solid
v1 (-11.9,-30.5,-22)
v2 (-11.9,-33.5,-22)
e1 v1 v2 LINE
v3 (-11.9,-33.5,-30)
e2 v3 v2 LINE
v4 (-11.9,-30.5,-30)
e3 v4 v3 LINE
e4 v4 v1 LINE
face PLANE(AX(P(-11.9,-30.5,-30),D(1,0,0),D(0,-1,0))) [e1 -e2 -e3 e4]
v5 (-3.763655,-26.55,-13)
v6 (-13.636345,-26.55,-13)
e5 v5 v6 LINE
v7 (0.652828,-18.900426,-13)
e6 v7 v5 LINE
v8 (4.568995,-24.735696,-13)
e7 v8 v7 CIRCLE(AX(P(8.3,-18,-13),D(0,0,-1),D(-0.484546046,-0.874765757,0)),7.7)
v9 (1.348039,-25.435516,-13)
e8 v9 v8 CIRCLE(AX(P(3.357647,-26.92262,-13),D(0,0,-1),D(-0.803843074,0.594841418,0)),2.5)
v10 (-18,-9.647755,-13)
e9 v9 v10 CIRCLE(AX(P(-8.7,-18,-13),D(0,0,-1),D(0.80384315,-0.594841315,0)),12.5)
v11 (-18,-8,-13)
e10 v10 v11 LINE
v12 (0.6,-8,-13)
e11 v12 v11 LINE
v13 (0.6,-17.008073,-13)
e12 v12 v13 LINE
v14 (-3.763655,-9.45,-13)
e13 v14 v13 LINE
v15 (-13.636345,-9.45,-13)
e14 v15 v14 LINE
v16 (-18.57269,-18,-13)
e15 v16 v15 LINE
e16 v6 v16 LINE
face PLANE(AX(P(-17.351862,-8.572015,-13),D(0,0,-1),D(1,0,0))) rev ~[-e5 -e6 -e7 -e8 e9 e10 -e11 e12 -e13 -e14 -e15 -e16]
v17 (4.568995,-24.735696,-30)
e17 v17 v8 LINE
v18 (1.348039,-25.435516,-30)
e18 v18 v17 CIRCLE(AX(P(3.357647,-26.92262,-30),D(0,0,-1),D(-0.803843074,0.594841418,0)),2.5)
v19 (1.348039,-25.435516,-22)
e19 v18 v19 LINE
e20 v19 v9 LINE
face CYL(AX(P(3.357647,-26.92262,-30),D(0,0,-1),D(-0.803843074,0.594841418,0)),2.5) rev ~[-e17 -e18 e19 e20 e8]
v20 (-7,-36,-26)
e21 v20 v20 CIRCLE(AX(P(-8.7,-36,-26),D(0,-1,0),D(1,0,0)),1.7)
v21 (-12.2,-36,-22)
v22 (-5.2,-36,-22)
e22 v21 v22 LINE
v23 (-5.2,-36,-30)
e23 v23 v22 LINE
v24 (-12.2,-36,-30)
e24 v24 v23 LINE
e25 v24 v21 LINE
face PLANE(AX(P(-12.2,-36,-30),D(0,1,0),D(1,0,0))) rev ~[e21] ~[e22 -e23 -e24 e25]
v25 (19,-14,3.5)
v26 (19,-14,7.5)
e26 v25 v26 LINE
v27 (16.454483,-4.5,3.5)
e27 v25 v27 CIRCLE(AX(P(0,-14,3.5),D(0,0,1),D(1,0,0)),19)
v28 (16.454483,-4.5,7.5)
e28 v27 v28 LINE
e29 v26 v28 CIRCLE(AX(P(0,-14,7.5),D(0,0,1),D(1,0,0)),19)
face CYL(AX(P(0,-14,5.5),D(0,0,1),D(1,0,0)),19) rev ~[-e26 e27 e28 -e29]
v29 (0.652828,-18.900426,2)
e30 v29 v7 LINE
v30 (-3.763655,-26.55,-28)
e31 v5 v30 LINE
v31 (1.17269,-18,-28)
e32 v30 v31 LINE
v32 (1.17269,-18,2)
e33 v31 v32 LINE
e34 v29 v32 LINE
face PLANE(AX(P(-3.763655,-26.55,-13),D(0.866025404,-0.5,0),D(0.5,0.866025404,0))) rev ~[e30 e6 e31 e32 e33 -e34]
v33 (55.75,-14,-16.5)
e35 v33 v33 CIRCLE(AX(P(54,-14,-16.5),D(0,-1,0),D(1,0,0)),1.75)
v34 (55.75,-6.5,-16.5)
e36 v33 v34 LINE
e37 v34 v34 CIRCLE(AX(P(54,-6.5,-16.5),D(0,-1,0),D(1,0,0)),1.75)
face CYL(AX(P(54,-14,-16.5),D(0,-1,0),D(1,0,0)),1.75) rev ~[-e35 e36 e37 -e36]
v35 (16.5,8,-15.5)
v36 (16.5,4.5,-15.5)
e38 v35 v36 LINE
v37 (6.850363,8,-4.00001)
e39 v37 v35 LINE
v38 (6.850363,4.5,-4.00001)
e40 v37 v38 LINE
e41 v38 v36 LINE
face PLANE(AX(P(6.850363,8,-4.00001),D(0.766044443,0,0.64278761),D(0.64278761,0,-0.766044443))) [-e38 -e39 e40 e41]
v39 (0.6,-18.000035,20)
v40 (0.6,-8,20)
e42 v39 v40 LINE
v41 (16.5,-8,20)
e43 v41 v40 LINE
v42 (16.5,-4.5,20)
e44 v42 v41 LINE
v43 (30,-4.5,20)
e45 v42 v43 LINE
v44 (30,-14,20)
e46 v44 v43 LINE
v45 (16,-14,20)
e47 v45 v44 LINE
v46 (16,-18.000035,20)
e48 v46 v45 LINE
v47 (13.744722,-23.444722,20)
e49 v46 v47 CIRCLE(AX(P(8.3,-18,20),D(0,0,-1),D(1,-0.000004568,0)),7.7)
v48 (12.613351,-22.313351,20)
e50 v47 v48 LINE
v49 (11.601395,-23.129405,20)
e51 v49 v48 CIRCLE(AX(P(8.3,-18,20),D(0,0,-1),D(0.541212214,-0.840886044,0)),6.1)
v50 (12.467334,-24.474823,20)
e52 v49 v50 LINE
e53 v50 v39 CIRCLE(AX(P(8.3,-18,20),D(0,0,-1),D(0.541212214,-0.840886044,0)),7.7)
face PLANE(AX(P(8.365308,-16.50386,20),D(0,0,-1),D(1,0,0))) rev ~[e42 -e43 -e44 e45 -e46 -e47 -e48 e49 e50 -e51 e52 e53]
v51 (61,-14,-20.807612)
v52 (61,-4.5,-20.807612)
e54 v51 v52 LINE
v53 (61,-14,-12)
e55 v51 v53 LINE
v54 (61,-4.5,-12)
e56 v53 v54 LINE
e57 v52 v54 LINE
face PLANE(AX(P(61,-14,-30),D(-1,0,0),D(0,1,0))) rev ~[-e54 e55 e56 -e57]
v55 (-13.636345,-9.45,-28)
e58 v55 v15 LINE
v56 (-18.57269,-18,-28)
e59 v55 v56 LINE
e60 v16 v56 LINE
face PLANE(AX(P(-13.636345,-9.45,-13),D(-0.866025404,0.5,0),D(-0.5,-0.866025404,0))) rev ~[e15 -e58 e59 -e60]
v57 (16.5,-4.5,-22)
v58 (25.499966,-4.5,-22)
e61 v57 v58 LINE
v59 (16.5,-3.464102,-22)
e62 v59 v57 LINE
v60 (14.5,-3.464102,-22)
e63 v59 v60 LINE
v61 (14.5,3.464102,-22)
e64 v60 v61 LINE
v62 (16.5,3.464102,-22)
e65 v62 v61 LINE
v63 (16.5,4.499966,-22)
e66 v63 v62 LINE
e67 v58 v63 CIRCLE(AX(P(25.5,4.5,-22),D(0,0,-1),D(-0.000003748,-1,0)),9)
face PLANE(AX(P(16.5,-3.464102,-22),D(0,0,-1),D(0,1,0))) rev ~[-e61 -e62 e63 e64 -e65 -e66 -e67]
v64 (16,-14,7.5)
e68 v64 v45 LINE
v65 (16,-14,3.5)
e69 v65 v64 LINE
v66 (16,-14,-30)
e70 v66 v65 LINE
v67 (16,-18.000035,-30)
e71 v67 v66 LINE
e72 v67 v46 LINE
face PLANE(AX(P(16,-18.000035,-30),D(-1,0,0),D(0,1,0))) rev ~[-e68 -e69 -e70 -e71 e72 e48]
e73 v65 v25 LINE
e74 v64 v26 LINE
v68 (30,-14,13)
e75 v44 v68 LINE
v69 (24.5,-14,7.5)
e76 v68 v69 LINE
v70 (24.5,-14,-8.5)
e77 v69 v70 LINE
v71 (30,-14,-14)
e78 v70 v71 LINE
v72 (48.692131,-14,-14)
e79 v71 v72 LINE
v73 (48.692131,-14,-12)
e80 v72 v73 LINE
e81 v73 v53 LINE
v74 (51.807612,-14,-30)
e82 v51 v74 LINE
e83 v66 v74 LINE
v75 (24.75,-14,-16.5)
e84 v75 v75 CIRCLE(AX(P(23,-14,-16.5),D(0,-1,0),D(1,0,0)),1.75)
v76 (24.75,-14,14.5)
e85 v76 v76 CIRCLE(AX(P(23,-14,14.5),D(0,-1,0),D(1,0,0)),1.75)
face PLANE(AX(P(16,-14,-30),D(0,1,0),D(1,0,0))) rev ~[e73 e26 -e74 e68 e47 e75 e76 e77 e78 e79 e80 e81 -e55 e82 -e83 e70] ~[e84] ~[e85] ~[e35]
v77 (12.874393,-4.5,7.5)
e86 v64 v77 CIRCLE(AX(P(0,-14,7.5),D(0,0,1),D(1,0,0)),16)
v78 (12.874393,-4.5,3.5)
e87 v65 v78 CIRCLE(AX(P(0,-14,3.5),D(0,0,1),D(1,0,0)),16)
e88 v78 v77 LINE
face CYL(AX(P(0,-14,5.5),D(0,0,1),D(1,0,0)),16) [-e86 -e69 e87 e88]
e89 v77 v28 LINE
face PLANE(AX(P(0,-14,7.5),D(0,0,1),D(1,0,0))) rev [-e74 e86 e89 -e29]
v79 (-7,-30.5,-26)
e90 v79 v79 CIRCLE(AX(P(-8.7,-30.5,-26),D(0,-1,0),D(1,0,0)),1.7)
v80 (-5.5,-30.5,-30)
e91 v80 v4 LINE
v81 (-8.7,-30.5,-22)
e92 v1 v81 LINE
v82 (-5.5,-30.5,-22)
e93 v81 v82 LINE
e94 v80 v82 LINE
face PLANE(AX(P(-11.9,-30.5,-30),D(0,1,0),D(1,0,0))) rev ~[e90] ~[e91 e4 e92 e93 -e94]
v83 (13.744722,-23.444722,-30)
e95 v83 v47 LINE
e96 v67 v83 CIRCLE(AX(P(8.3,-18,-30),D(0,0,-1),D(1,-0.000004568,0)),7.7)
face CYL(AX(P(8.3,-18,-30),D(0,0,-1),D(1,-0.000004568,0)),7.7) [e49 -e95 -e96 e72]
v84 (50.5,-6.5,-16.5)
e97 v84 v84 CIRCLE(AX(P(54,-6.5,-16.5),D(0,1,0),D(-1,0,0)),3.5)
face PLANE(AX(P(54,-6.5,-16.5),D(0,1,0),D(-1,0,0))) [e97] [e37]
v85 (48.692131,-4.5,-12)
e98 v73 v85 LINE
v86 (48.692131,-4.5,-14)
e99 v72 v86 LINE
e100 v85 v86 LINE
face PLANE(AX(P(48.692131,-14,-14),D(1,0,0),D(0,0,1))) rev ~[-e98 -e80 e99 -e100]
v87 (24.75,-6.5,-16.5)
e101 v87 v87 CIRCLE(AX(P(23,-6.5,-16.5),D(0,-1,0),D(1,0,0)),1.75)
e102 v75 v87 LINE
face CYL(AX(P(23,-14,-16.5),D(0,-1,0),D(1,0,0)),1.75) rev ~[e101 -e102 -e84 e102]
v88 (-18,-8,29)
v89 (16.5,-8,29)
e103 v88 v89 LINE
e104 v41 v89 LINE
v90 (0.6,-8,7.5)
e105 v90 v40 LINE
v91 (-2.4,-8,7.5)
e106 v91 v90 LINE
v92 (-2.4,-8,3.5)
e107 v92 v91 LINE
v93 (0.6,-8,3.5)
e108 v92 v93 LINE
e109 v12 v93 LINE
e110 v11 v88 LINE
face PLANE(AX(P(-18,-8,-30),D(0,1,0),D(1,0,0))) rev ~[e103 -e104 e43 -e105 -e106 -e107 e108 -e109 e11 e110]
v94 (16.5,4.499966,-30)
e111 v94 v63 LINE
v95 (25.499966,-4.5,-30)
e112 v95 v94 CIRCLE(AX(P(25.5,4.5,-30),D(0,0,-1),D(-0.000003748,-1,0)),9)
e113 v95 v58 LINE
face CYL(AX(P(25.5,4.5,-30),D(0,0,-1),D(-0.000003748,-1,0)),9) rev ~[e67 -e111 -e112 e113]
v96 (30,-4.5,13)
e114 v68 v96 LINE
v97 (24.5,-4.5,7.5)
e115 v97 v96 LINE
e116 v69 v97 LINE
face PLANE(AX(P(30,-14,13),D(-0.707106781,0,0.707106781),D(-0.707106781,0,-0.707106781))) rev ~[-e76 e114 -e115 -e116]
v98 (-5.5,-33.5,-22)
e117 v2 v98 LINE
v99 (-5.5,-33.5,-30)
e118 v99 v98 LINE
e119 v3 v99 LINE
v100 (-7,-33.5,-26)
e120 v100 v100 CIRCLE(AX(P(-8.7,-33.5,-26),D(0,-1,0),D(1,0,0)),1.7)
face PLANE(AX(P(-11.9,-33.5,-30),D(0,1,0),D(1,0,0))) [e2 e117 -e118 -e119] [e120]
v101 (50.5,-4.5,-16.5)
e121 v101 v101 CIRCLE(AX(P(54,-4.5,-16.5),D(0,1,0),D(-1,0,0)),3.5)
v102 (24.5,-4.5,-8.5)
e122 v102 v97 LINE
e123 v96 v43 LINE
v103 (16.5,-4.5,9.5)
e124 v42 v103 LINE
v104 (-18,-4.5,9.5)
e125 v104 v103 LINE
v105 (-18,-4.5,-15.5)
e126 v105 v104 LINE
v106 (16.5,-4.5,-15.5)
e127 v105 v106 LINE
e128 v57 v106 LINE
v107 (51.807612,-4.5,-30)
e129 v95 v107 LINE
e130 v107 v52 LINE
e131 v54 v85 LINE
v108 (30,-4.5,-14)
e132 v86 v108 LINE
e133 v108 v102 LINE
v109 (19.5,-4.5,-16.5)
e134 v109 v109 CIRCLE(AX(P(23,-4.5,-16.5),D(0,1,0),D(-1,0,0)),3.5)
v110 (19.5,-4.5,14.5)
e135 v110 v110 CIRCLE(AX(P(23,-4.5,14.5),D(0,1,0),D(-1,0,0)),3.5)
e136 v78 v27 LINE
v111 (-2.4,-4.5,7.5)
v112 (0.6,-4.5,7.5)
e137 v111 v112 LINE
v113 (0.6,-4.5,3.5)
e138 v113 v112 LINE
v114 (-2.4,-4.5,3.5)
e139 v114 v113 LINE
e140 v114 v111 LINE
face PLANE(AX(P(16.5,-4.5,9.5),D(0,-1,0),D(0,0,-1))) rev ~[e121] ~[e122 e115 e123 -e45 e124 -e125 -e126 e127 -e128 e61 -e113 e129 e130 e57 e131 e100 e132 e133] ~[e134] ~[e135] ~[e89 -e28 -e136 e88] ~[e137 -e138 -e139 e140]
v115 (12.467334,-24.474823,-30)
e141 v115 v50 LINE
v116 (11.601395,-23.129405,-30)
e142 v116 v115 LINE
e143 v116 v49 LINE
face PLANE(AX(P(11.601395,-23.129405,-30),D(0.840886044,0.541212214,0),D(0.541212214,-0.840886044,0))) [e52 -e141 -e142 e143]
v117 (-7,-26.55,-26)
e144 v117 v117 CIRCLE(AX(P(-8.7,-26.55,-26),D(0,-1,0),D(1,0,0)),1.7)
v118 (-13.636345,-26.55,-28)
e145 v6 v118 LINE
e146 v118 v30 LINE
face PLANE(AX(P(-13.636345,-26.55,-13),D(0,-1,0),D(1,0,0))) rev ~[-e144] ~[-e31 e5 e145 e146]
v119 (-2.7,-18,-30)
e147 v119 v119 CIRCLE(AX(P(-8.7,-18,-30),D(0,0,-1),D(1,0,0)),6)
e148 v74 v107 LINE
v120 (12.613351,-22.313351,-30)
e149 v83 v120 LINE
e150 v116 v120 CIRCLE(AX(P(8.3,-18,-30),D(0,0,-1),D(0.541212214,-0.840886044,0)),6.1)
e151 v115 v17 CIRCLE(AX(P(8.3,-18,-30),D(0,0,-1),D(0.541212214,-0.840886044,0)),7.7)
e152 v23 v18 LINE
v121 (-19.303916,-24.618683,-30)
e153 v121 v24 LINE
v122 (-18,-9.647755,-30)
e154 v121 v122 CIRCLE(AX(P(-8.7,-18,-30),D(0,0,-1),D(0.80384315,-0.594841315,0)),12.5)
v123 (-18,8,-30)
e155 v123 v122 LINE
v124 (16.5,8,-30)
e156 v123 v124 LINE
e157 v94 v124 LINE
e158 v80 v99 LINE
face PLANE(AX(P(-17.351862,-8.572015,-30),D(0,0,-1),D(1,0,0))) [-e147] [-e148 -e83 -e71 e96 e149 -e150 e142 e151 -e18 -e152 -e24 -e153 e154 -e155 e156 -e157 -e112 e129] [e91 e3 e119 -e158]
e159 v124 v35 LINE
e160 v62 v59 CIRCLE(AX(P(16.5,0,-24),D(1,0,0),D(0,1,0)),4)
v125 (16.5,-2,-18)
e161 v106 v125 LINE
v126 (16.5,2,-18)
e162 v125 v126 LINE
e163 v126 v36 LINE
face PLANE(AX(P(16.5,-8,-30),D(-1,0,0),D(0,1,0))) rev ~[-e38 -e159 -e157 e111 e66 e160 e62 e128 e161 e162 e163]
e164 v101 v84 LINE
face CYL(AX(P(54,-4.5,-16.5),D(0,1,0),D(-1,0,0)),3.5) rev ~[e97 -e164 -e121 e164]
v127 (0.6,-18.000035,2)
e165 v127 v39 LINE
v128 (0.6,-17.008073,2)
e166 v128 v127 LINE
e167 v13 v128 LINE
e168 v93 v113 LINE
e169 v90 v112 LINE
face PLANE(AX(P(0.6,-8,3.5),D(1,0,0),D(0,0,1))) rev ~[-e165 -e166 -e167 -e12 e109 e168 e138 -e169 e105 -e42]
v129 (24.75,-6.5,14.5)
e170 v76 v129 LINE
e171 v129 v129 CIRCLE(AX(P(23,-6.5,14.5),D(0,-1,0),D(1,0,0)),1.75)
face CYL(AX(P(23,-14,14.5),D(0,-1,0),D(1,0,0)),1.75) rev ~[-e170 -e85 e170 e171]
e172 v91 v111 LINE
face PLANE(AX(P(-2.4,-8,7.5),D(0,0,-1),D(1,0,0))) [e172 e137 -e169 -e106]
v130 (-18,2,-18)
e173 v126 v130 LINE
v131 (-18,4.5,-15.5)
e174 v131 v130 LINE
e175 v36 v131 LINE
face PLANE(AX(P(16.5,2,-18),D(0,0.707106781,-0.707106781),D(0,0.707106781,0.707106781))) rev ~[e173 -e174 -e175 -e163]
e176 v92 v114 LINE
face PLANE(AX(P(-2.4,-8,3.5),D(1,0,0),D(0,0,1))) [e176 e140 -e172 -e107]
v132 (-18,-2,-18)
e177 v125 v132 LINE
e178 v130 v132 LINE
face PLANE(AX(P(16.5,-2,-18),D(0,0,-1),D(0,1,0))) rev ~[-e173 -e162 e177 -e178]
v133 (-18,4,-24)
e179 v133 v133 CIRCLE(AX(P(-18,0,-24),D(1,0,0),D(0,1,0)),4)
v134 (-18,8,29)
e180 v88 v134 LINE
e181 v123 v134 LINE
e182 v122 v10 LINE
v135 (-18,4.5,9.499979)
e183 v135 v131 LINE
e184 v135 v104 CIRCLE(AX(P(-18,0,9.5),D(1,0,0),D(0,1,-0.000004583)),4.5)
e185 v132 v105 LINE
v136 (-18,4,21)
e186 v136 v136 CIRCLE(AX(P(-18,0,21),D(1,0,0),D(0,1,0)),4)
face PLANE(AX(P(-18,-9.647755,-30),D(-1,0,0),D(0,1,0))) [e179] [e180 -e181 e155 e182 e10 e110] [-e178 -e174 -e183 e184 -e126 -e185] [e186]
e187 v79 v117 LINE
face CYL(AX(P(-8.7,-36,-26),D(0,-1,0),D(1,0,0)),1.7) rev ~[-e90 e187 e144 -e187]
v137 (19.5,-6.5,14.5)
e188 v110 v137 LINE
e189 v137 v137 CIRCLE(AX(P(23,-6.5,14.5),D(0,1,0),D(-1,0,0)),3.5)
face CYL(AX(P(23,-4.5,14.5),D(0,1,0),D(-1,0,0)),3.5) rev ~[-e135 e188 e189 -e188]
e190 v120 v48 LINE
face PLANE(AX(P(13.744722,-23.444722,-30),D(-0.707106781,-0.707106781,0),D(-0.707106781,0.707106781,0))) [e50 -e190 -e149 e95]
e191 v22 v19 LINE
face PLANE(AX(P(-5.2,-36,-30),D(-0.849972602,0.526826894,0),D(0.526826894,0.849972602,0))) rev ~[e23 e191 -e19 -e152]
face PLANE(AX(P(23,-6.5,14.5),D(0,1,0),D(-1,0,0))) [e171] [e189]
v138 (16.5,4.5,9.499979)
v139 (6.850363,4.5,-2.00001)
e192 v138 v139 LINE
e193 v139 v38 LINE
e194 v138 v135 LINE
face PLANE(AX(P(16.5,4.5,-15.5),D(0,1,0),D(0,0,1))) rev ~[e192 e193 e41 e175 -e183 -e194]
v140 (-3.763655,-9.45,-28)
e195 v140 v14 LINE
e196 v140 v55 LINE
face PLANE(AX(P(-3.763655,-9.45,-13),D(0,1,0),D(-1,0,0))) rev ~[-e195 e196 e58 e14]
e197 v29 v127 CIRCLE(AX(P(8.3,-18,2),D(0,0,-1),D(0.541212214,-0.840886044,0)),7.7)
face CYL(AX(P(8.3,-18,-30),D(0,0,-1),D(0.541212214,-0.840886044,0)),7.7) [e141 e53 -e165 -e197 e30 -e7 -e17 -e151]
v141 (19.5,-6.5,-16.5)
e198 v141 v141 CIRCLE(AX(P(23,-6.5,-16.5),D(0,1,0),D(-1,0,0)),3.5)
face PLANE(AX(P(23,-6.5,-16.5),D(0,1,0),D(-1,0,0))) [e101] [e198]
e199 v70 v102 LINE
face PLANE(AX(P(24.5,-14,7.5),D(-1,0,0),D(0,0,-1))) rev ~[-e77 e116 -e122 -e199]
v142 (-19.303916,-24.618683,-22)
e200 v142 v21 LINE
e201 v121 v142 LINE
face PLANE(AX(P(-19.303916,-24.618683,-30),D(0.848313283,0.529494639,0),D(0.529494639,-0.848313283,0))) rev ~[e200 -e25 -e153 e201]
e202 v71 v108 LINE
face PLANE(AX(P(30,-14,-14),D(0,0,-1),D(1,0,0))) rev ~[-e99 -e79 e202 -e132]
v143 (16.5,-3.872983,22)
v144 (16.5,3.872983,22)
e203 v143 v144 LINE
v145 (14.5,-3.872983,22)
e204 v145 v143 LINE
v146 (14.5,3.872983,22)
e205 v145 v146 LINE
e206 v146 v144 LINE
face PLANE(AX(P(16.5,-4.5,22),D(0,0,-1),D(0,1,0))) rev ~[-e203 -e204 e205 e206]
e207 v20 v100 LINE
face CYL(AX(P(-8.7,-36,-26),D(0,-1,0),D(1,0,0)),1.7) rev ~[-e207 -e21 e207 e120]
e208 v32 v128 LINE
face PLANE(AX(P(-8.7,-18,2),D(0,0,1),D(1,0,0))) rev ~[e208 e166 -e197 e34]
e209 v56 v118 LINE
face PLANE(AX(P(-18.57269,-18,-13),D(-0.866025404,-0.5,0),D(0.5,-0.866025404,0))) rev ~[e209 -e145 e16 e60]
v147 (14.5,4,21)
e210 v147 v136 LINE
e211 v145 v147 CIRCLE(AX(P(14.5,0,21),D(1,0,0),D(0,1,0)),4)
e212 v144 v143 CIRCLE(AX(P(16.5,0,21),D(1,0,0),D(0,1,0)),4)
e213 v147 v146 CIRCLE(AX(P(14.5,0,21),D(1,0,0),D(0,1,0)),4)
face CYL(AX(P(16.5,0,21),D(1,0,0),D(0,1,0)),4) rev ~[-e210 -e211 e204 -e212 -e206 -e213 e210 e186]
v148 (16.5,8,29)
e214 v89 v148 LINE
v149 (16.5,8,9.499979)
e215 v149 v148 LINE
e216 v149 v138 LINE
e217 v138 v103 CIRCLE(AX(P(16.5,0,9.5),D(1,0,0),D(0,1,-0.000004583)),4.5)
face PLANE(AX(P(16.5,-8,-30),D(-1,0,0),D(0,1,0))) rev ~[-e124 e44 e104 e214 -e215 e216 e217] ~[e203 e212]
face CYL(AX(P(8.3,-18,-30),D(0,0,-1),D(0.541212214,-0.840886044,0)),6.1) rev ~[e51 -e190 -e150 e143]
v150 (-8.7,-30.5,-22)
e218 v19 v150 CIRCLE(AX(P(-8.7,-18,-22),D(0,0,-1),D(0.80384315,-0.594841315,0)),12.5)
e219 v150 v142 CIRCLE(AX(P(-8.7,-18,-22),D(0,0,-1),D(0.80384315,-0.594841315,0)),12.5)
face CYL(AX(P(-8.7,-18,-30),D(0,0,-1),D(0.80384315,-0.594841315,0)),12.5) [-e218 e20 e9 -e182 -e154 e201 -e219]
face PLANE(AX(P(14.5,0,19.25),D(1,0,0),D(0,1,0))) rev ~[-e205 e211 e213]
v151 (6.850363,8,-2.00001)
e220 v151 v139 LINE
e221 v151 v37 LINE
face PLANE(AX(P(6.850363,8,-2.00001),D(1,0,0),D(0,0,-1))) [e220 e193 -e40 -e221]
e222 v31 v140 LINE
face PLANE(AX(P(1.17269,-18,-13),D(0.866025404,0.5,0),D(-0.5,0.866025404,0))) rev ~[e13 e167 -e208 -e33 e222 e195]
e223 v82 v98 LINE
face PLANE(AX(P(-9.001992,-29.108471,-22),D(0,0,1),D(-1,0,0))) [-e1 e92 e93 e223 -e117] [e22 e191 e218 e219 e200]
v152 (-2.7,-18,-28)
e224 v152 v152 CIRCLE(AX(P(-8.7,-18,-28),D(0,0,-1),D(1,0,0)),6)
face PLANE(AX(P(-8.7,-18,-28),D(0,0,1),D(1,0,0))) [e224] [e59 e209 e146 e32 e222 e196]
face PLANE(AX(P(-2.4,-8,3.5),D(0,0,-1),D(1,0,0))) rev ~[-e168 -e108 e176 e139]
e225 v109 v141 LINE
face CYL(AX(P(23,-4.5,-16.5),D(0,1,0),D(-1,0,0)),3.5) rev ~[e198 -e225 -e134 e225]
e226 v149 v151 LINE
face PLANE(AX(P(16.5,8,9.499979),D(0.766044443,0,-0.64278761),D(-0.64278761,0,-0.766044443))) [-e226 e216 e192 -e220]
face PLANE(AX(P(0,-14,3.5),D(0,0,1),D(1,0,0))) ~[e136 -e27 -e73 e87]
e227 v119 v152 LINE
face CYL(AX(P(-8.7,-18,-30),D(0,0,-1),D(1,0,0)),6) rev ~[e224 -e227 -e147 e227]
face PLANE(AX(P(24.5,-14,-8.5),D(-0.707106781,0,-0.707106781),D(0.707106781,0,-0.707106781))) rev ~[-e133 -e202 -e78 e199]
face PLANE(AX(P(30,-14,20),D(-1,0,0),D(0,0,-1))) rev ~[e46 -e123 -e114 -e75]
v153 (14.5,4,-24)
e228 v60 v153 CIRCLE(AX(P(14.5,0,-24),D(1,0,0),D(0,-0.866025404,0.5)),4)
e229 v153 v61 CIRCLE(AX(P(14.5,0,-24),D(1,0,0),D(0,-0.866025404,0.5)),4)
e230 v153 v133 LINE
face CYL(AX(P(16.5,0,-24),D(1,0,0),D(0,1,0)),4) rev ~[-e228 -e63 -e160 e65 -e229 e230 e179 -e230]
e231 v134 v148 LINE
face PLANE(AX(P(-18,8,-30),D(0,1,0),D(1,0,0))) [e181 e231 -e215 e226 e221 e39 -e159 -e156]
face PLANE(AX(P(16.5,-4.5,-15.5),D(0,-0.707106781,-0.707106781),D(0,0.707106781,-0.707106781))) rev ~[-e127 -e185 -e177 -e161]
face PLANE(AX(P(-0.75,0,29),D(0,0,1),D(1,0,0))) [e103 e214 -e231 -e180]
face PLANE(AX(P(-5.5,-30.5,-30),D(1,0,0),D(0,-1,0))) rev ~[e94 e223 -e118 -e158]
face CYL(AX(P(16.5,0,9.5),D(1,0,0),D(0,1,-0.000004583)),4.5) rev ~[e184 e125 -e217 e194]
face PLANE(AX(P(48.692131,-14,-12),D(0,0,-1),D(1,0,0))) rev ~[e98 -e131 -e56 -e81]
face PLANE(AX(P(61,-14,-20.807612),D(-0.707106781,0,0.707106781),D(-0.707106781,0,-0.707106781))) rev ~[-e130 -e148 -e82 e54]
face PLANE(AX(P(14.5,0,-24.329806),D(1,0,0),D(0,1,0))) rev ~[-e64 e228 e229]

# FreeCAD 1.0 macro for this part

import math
import FreeCAD as App
import Part
import Sketcher
from FreeCAD import Vector
Q = App.Units.Quantity


def add_polygon(sketch, points):
    """Adds a closed chain of lines whose ends are joined by coincident constraints."""
    first, n = sketch.GeometryCount, len(points)
    for a, b in zip(points, points[1:] + points[:1]):
        sketch.addGeometry(Part.LineSegment(App.Vector(*a, 0), App.Vector(*b, 0)), False)
    for i in range(n):
        sketch.addConstraint(Sketcher.Constraint("Coincident", first + i, 2, first + (i + 1) % n, 1))

doc = App.newDocument("Part")
params = doc.addObject("Spreadsheet::Sheet", "Params")
for row, (alias, value) in enumerate([
    ("sketch1_height", "16 mm"),
    ("sketch1_width", "34.5 mm"),
    ("pad1_length", "59 mm"),
    ("sketch2_diameter", "8 mm"),
    ("sketch2_radius", "4.5 mm"),
    ("sketch2_width", "4 mm"),
    ("sketch2_height", "25 mm"),
    ("sketch3_height", "2 mm"),
    ("pocket2_length", "3.5 mm"),
    ("sketch4_width", "45 mm"),
    ("sketch4_height", "9.5 mm"),
    ("pad2_length", "50 mm"),
    ("sketch5_diameter", "3.5 mm"),
    ("sketch5_width", "31 mm"),
    ("sketch5_height", "7 mm"),
    ("sketch5_height2", "16 mm"),
    ("sketch5_height3", "2 mm"),
    ("sketch6_radius", "9 mm"),
    ("pad3_length", "8 mm"),
    ("sketch7_radius", "4 mm"),
    ("pad4_length", "2 mm"),
    ("sketch8_diameter", "7 mm"),
    ("pocket4_length", "2 mm"),
    ("sketch9_radius", "7.7 mm"),
    ("sketch9_radius2", "6.1 mm"),
    ("pad5_length", "50 mm"),
    ("sketch10_diameter", "12 mm"),
    ("sketch10_radius", "12.5 mm"),
    ("sketch10_radius2", "7.7 mm"),
    ("sketch10_radius3", "2.5 mm"),
    ("sketch10_width", "16.8 mm"),
    ("pad6_length", "17 mm"),
    ("sketch11_width", "9 mm"),
    ("sketch11_height", "5.5 mm"),
    ("pad7_length", "2 mm"),
    ("sketch12_width", "3 mm"),
    ("sketch12_height", "4 mm"),
    ("groove_angle", "40 deg"),
    ("sketch13_width", "3 mm"),
    ("sketch13_height", "4 mm"),
    ("pocket5_length", "5 mm"),
    ("sketch14_width", "7 mm"),
    ("sketch14_height", "3 mm"),
    ("sketch14_width2", "6.4 mm"),
    ("pad8_length", "8 mm"),
    ("sketch15_diameter", "3.4 mm"),
    ("pocket6_length", "13 mm"),
    ("pocket7_length", "30 mm"),
    ("sketch17_width", "1.8 mm"),
    ("pad9_length", "17 mm"),
], start=1):
    params.set(f"A{row}", alias)
    params.set(f"B{row}", "=" + value)
    params.setAlias(f"B{row}", alias)

body = doc.addObject("PartDesign::Body", "Body")

# Sketch on XY plane
sketch1 = body.newObject("Sketcher::SketchObject", "Sketch")
sketch1.AttachmentSupport = (doc.getObject("XY_Plane"), [""])
sketch1.MapMode = "FlatFace"
sketch1.AttachmentOffset = App.Placement(Vector(0, 0, -30), App.Rotation())
add_polygon(sketch1, [(-18, 8), (-18, -8), (16, -8), (16, 8)])  # lines 0-3
sketch1.addConstraint([
    Sketcher.Constraint("Vertical", 0),
    Sketcher.Constraint("Horizontal", 1),
    Sketcher.Constraint("Vertical", 2),
    Sketcher.Constraint("Horizontal", 3),
    Sketcher.Constraint("DistanceY", 0, 2, 0, 1, Q("16 mm")),
    Sketcher.Constraint("DistanceX", 1, 1, 1, 2, Q("34.5 mm")),
    Sketcher.Constraint("DistanceX", 0, 2, -1, 1, Q("18 mm")),
    Sketcher.Constraint("DistanceY", 0, 2, -1, 1, Q("8 mm")),
])
sketch1.setExpression("Constraints[8]", "Params.sketch1_height")
sketch1.setExpression("Constraints[9]", "Params.sketch1_width")
pad1 = body.newObject("PartDesign::Pad", "Pad")
pad1.Profile = sketch1
pad1.setExpression("Length", "Params.pad1_length")

# Sketch on YZ plane
sketch2 = body.newObject("Sketcher::SketchObject", "Sketch001")
sketch2.AttachmentSupport = (doc.getObject("YZ_Plane"), [""])
sketch2.MapMode = "FlatFace"
sketch2.AttachmentOffset = App.Placement(Vector(0, 0, 16.5), App.Rotation())
sketch2.addGeometry([
    Part.Circle(Vector(0, 21, 0), Vector(0, 0, 1), 4),  # 0
    Part.Circle(Vector(0, -24, 0), Vector(0, 0, 1), 4),  # 1
    Part.ArcOfCircle(Part.Circle(Vector(0, 9.5, 0), Vector(0, 0, 1), 4.5), math.radians(0), math.radians(180)),  # 2
    Part.LineSegment(Vector(-4.5, 9.5, 0), Vector(-4.5, -15.5, 0)),  # 3
    Part.LineSegment(Vector(-4.5, -15.5, 0), Vector(-2, -18, 0)),  # 4
    Part.LineSegment(Vector(-2, -18, 0), Vector(2, -18, 0)),  # 5
    Part.LineSegment(Vector(2, -18, 0), Vector(4.5, -15.5, 0)),  # 6
    Part.LineSegment(Vector(4.5, -15.5, 0), Vector(4.5, 9.5, 0)),  # 7
], False)
sketch2.addConstraint([
    Sketcher.Constraint("Tangent", 2, 2, 3, 1),
    Sketcher.Constraint("Coincident", 3, 2, 4, 1),
    Sketcher.Constraint("Coincident", 4, 2, 5, 1),
    Sketcher.Constraint("Coincident", 5, 2, 6, 1),
    Sketcher.Constraint("Coincident", 6, 2, 7, 1),
    Sketcher.Constraint("Coincident", 7, 2, 2, 1),
    Sketcher.Constraint("Vertical", 3),
    Sketcher.Constraint("Horizontal", 5),
    Sketcher.Constraint("Vertical", 7),
    Sketcher.Constraint("Equal", 0, 1),
    Sketcher.Constraint("Symmetric", 3, 2, 6, 2, -2),
    Sketcher.Constraint("PointOnObject", 0, 3, -2),
    Sketcher.Constraint("PointOnObject", 1, 3, -2),
    Sketcher.Constraint("Perpendicular", 4, 6),
    Sketcher.Constraint("Equal", 4, 6),
    Sketcher.Constraint("Diameter", 0, Q("8 mm")),
    Sketcher.Constraint("Radius", 2, Q("4.5 mm")),
    Sketcher.Constraint("DistanceX", 5, 1, 5, 2, Q("4 mm")),
    Sketcher.Constraint("DistanceY", 3, 2, 3, 1, Q("25 mm")),
    Sketcher.Constraint("DistanceY", -1, 1, 0, 3, Q("21 mm")),
    Sketcher.Constraint("DistanceY", 1, 3, -1, 1, Q("24 mm")),
    Sketcher.Constraint("DistanceY", 4, 2, -1, 1, Q("18 mm")),
    Sketcher.Constraint("DistanceY", 7, 1, 7, 2, Q("24.999979 mm")),
])
sketch2.setExpression("Constraints[15]", "Params.sketch2_diameter")
sketch2.setExpression("Constraints[16]", "Params.sketch2_radius")
sketch2.setExpression("Constraints[17]", "Params.sketch2_width")
sketch2.setExpression("Constraints[18]", "Params.sketch2_height")
pocket1 = body.newObject("PartDesign::Pocket", "Pocket")
pocket1.Profile = sketch2
pocket1.Type = "ThroughAll"

# Sketch on XZ plane
sketch3 = body.newObject("Sketcher::SketchObject", "Sketch002")
sketch3.AttachmentSupport = (doc.getObject("XZ_Plane"), [""])
sketch3.MapMode = "FlatFace"
sketch3.AttachmentOffset = App.Placement(Vector(0, 0, -8), App.Rotation())
add_polygon(sketch3, [(6.9, -2), (16.5, 9.5), (16.5, -15.5), (6.9, -4)])  # lines 0-3
sketch3.addConstraint([
    Sketcher.Constraint("Vertical", 1),
    Sketcher.Constraint("Vertical", 3),
    Sketcher.Constraint("Equal", 0, 2),
    Sketcher.Constraint("DistanceY", 3, 1, 3, 2, Q("2 mm")),
    Sketcher.Constraint("Angle", 0, Q("50 deg")),
    Sketcher.Constraint("DistanceX", -1, 1, 0, 2, Q("16.5 mm")),
    Sketcher.Constraint("DistanceY", 1, 2, -1, 1, Q("15.5 mm")),
    Sketcher.Constraint("DistanceY", 1, 2, 1, 1, Q("24.999979 mm")),
])
sketch3.setExpression("Constraints[7]", "Params.sketch3_height")
pocket2 = body.newObject("PartDesign::Pocket", "Pocket001")
pocket2.Profile = sketch3
pocket2.setExpression("Length", "Params.pocket2_length")
pocket2.Reversed = True
body2 = doc.addObject("PartDesign::Body", "Body001")

# Sketch on XY plane
sketch4 = body2.newObject("Sketcher::SketchObject", "Sketch003")
sketch4.AttachmentSupport = (doc.getObject("XY_Plane001"), [""])
sketch4.MapMode = "FlatFace"
sketch4.AttachmentOffset = App.Placement(Vector(0, 0, -30), App.Rotation())
add_polygon(sketch4, [(16, -4), (16, -14), (61, -14), (61, -4)])  # lines 0-3
sketch4.addConstraint([
    Sketcher.Constraint("Vertical", 0),
    Sketcher.Constraint("Horizontal", 1),
    Sketcher.Constraint("Vertical", 2),
    Sketcher.Constraint("Horizontal", 3),
    Sketcher.Constraint("DistanceX", 1, 1, 1, 2, Q("45 mm")),
    Sketcher.Constraint("DistanceY", 0, 2, 0, 1, Q("9.5 mm")),
    Sketcher.Constraint("DistanceX", -1, 1, 0, 2, Q("16 mm")),
    Sketcher.Constraint("DistanceY", 0, 2, -1, 1, Q("14 mm")),
])
sketch4.setExpression("Constraints[8]", "Params.sketch4_width")
sketch4.setExpression("Constraints[9]", "Params.sketch4_height")
pad2 = body2.newObject("PartDesign::Pad", "Pad001")
pad2.Profile = sketch4
pad2.setExpression("Length", "Params.pad2_length")

# Sketch on XZ plane
sketch5 = body2.newObject("Sketcher::SketchObject", "Sketch004")
sketch5.AttachmentSupport = (doc.getObject("XZ_Plane001"), [""])
sketch5.MapMode = "FlatFace"
sketch5.AttachmentOffset = App.Placement(Vector(0, 0, 14), App.Rotation())
sketch5.addGeometry(Part.Circle(Vector(23, 14.5, 0), Vector(0, 0, 1), 1.8), False)  # 0
sketch5.addGeometry(Part.Circle(Vector(23, -16.5, 0), Vector(0, 0, 1), 1.8), False)  # 1
sketch5.addGeometry(Part.Circle(Vector(54, -16.5, 0), Vector(0, 0, 1), 1.8), False)  # 2
add_polygon(sketch5, [(30, 20), (30, 13), (24.5, 7.5), (24.5, -8.5), (30, -14), (48.7, -14), (48.7, -12), (61, -12), (61, 20)])  # lines 3-11
add_polygon(sketch5, [(61, -20.8), (51.8, -30), (61, -30)])  # lines 12-14
sketch5.addConstraint([
    Sketcher.Constraint("Vertical", 3),
    Sketcher.Constraint("Vertical", 5),
    Sketcher.Constraint("Horizontal", 7),
    Sketcher.Constraint("Vertical", 8),
    Sketcher.Constraint("Horizontal", 9),
    Sketcher.Constraint("Vertical", 10),
    Sketcher.Constraint("Horizontal", 11),
    Sketcher.Constraint("Horizontal", 13),
    Sketcher.Constraint("Vertical", 14),
    Sketcher.Constraint("Equal", 0, 1),
    Sketcher.Constraint("Equal", 1, 2),
    Sketcher.Constraint("Perpendicular", 4, 6),
    Sketcher.Constraint("Perpendicular", 6, 12),
    Sketcher.Constraint("Horizontal", 1, 3, 2, 3),
    Sketcher.Constraint("Vertical", 0, 3, 1, 3),
    Sketcher.Constraint("Vertical", 3, 2, 6, 2),
    Sketcher.Constraint("Vertical", 10, 2, 13, 2),
    Sketcher.Constraint("Equal", 13, 14),
    Sketcher.Constraint("Diameter", 0, Q("3.5 mm")),
    Sketcher.Constraint("DistanceX", 11, 2, 11, 1, Q("31 mm")),
    Sketcher.Constraint("DistanceY", 3, 2, 3, 1, Q("7 mm")),
    Sketcher.Constraint("DistanceY", 5, 2, 5, 1, Q("16 mm")),
    Sketcher.Constraint("DistanceY", 8, 1, 8, 2, Q("2 mm")),
    Sketcher.Constraint("DistanceY", 10, 1, 10, 2, Q("32 mm")),
    Sketcher.Constraint("Distance", 12, Q("13 mm")),
    Sketcher.Constraint("DistanceX", -1, 1, 0, 3, Q("23 mm")),
    Sketcher.Constraint("DistanceX", -1, 1, 2, 3, Q("54 mm")),
    Sketcher.Constraint("DistanceX", -1, 1, 3, 2, Q("30 mm")),
    Sketcher.Constraint("DistanceY", -1, 1, 3, 2, Q("13 mm")),
    Sketcher.Constraint("DistanceY", 12, 2, -1, 1, Q("30 mm")),
    Sketcher.Constraint("DistanceY", 1, 3, 0, 3, Q("31 mm")),
    Sketcher.Constraint("DistanceY", 4, 2, 0, 3, Q("7 mm")),
    Sketcher.Constraint("DistanceX", 7, 1, 7, 2, Q("18.692131 mm")),
])
sketch5.setExpression("Constraints[30]", "Params.sketch5_diameter")
sketch5.setExpression("Constraints[31]", "Params.sketch5_width")
sketch5.setExpression("Constraints[32]", "Params.sketch5_height")
sketch5.setExpression("Constraints[33]", "Params.sketch5_height2")
sketch5.setExpression("Constraints[34]", "Params.sketch5_height3")
pocket3 = body2.newObject("PartDesign::Pocket", "Pocket002")
pocket3.Profile = sketch5
pocket3.Type = "ThroughAll"
doc.recompute()

boolean = body2.newObject("PartDesign::Boolean", "Boolean")
boolean.Type = "Fuse"
boolean.addObjects([body])

# Sketch on XY plane
sketch6 = body2.newObject("Sketcher::SketchObject", "Sketch005")
sketch6.AttachmentSupport = (doc.getObject("XY_Plane001"), [""])
sketch6.MapMode = "FlatFace"
sketch6.AttachmentOffset = App.Placement(Vector(0, 0, -30), App.Rotation())
sketch6.addGeometry([
    Part.ArcOfCircle(Part.Circle(Vector(26, 4, 0), Vector(0, 0, 1), 9), math.radians(-180), math.radians(-90)),
    Part.LineSegment(Vector(25, -4, 0), Vector(16, -4, 0)),
    Part.LineSegment(Vector(16, -4, 0), Vector(16, 4, 0)),
], False)
sketch6.addConstraint([
    Sketcher.Constraint("Coincident", 0, 2, 1, 1),
    Sketcher.Constraint("Coincident", 1, 2, 2, 1),
    Sketcher.Constraint("Coincident", 2, 2, 0, 1),
    Sketcher.Constraint("Horizontal", 1),
    Sketcher.Constraint("Vertical", 2),
    Sketcher.Constraint("Equal", 1, 2),
    Sketcher.Constraint("Radius", 0, Q("9 mm")),
    Sketcher.Constraint("DistanceX", -1, 1, 0, 3, Q("25.5 mm")),
    Sketcher.Constraint("DistanceY", -1, 1, 0, 3, Q("4.5 mm")),
    Sketcher.Constraint("DistanceX", 1, 2, 1, 1, Q("8.999966 mm")),
])
sketch6.setExpression("Constraints[6]", "Params.sketch6_radius")
pad3 = body2.newObject("PartDesign::Pad", "Pad002")
pad3.Profile = sketch6
pad3.setExpression("Length", "Params.pad3_length")

# Sketch on YZ plane
sketch7 = body2.newObject("Sketcher::SketchObject", "Sketch006")
sketch7.AttachmentSupport = (doc.getObject("YZ_Plane001"), [""])
sketch7.MapMode = "FlatFace"
sketch7.AttachmentOffset = App.Placement(Vector(0, 0, 16.5), App.Rotation())
sketch7.addGeometry([
    Part.ArcOfCircle(Part.Circle(Vector(0, -24, 0), Vector(0, 0, 1), 4), math.radians(150), math.radians(390)),
    Part.LineSegment(Vector(3.5, -22, 0), Vector(-3.5, -22, 0)),
], False)
sketch7.addConstraint([
    Sketcher.Constraint("Coincident", 0, 1, 1, 2),
    Sketcher.Constraint("Coincident", 1, 1, 0, 2),
    Sketcher.Constraint("Horizontal", 1),
    Sketcher.Constraint("PointOnObject", 0, 3, -2),
    Sketcher.Constraint("Radius", 0, Q("4 mm")),
    Sketcher.Constraint("DistanceY", 0, 3, -1, 1, Q("24 mm")),
    Sketcher.Constraint("DistanceY", 0, 1, -1, 1, Q("22 mm")),
])
sketch7.setExpression("Constraints[4]", "Params.sketch7_radius")
pad4 = body2.newObject("PartDesign::Pad", "Pad003")
pad4.Profile = sketch7
pad4.setExpression("Length", "Params.pad4_length")
pad4.Reversed = True

# Sketch on XZ plane
sketch8 = body2.newObject("Sketcher::SketchObject", "Sketch007")
sketch8.AttachmentSupport = (doc.getObject("XZ_Plane001"), [""])
sketch8.MapMode = "FlatFace"
sketch8.AttachmentOffset = App.Placement(Vector(0, 0, 4.5), App.Rotation())
sketch8.addGeometry([
    Part.Circle(Vector(23, 14.5, 0), Vector(0, 0, 1), 3.5),
    Part.Circle(Vector(54, -16.5, 0), Vector(0, 0, 1), 3.5),
    Part.Circle(Vector(23, -16.5, 0), Vector(0, 0, 1), 3.5),
], False)
sketch8.addConstraint([
    Sketcher.Constraint("Equal", 0, 1),
    Sketcher.Constraint("Equal", 1, 2),
    Sketcher.Constraint("Horizontal", 1, 3, 2, 3),
    Sketcher.Constraint("Vertical", 0, 3, 2, 3),
    Sketcher.Constraint("Diameter", 0, Q("7 mm")),
    Sketcher.Constraint("DistanceX", -1, 1, 0, 3, Q("23 mm")),
    Sketcher.Constraint("DistanceX", -1, 1, 1, 3, Q("54 mm")),
    Sketcher.Constraint("DistanceY", 1, 3, 0, 3, Q("31 mm")),
    Sketcher.Constraint("DistanceY", -1, 1, 0, 3, Q("14.5 mm")),
])
sketch8.setExpression("Constraints[4]", "Params.sketch8_diameter")
pocket4 = body2.newObject("PartDesign::Pocket", "Pocket003")
pocket4.Profile = sketch8
pocket4.setExpression("Length", "Params.pocket4_length")
pocket4.Reversed = True

# Sketch on XY plane
sketch9 = body2.newObject("Sketcher::SketchObject", "Sketch008")
sketch9.AttachmentSupport = (doc.getObject("XY_Plane001"), [""])
sketch9.MapMode = "FlatFace"
sketch9.AttachmentOffset = App.Placement(Vector(0, 0, -30), App.Rotation())
sketch9.addGeometry([
    Part.ArcOfCircle(Part.Circle(Vector(8.3, -18, 0), Vector(0, 0, 1), 7.7), math.radians(-45), math.radians(0)),  # 0
    Part.LineSegment(Vector(13.7, -23.4, 0), Vector(12.6, -22.3, 0)),  # 1
    Part.ArcOfCircle(Part.Circle(Vector(8.3, -18, 0), Vector(0, 0, 1), 6.1), math.radians(-45), math.radians(303)),  # 2
    Part.LineSegment(Vector(11.6, -23.1, 0), Vector(12.5, -24.5, 0)),  # 3
    Part.ArcOfCircle(Part.Circle(Vector(8.3, -18, 0), Vector(0, 0, 1), 7.7), math.radians(-180), math.radians(-57)),  # 4
    Part.LineSegment(Vector(0.6, -18, 0), Vector(0.6, -8, 0)),  # 5
    Part.LineSegment(Vector(0.6, -8, 0), Vector(16, -8, 0)),  # 6
    Part.LineSegment(Vector(16, -8, 0), Vector(16, -18, 0)),  # 7
], False)
sketch9.addConstraint([
    Sketcher.Constraint("Coincident", 0, 1, 1, 1),
    Sketcher.Constraint("Coincident", 1, 2, 2, 1),
    Sketcher.Constraint("Coincident", 2, 2, 3, 1),
    Sketcher.Constraint("Coincident", 3, 2, 4, 2),
    Sketcher.Constraint("Coincident", 4, 1, 5, 1),
    Sketcher.Constraint("Coincident", 5, 2, 6, 1),
    Sketcher.Constraint("Coincident", 6, 2, 7, 1),
    Sketcher.Constraint("Coincident", 7, 2, 0, 2),
    Sketcher.Constraint("Vertical", 5),
    Sketcher.Constraint("Horizontal", 6),
    Sketcher.Constraint("Vertical", 7),
    Sketcher.Constraint("Coincident", 2, 3, 0, 3),
    Sketcher.Constraint("Coincident", 4, 3, 0, 3),
    Sketcher.Constraint("Equal", 0, 4),
    Sketcher.Constraint("Horizontal", 4, 1, 7, 2),
    Sketcher.Constraint("Radius", 0, Q("7.7 mm")),
    Sketcher.Constraint("Radius", 2, Q("6.1 mm")),
    Sketcher.Constraint("Angle", 1, Q("135 deg")),
    Sketcher.Constraint("DistanceY", 0, 3, -1, 1, Q("18 mm")),
    Sketcher.Constraint("DistanceY", 5, 2, -1, 1, Q("8 mm")),
    Sketcher.Constraint("DistanceX", -1, 1, 6, 2, Q("16 mm")),
    Sketcher.Constraint("DistanceY", 3, 2, 0, 1, Q("1.0301 mm")),
    Sketcher.Constraint("DistanceY", 5, 1, 5, 2, Q("10.000035 mm")),
    Sketcher.Constraint("DistanceX", -1, 1, 1, 2, Q("12.613351 mm")),
    Sketcher.Constraint("DistanceX", 2, 2, 3, 2, Q("0.86594 mm")),
])
sketch9.setExpression("Constraints[15]", "Params.sketch9_radius")
sketch9.setExpression("Constraints[16]", "Params.sketch9_radius2")
pad5 = body2.newObject("PartDesign::Pad", "Pad004")
pad5.Profile = sketch9
pad5.setExpression("Length", "Params.pad5_length")

# Sketch on XY plane
sketch10 = body2.newObject("Sketcher::SketchObject", "Sketch009")
sketch10.AttachmentSupport = (doc.getObject("XY_Plane001"), [""])
sketch10.MapMode = "FlatFace"
sketch10.AttachmentOffset = App.Placement(Vector(0, 0, -30), App.Rotation())
sketch10.addGeometry([
    Part.ArcOfCircle(Part.Circle(Vector(-8.7, -18, 0), Vector(0, 0, 1), 12.5), math.radians(127), math.radians(323)),  # 0
    Part.LineSegment(Vector(-16.2, -8, 0), Vector(0.6, -8, 0)),  # 1
    Part.LineSegment(Vector(0.6, -8, 0), Vector(0.6, -18, 0)),  # 2
    Part.ArcOfCircle(Part.Circle(Vector(8.3, -18, 0), Vector(0, 0, 1), 7.7), math.radians(-180), math.radians(-119)),  # 3
    Part.ArcOfCircle(Part.Circle(Vector(3.4, -26.9, 0), Vector(0, 0, 1), 2.5), math.radians(61), math.radians(143)),  # 4
    Part.Circle(Vector(-8.7, -18, 0), Vector(0, 0, 1), 6),  # 5
], False)
sketch10.addConstraint([
    Sketcher.Constraint("Coincident", 0, 1, 1, 1),
    Sketcher.Constraint("Coincident", 1, 2, 2, 1),
    Sketcher.Constraint("Tangent", 2, 2, 3, 1),
    Sketcher.Constraint("Coincident", 3, 2, 4, 1),
    Sketcher.Constraint("Tangent", 4, 2, 0, 2),
    Sketcher.Constraint("Horizontal", 1),
    Sketcher.Constraint("Vertical", 2),
    Sketcher.Constraint("Coincident", 5, 3, 0, 3),
    Sketcher.Constraint("Horizontal", 0, 3, 3, 3),
    Sketcher.Constraint("Diameter", 5, Q("12 mm")),
    Sketcher.Constraint("Radius", 0, Q("12.5 mm")),
    Sketcher.Constraint("Radius", 3, Q("7.7 mm")),
    Sketcher.Constraint("Radius", 4, Q("2.5 mm")),
    Sketcher.Constraint("DistanceX", 1, 1, 1, 2, Q("16.8 mm")),
    Sketcher.Constraint("DistanceY", 0, 3, -1, 1, Q("18 mm")),
    Sketcher.Constraint("DistanceY", 0, 1, -1, 1, Q("8 mm")),
    Sketcher.Constraint("DistanceX", 0, 3, -1, 1, Q("8.7 mm")),
    Sketcher.Constraint("DistanceX", 4, 3, 3, 2, Q("1.211348 mm")),
])
sketch10.setExpression("Constraints[9]", "Params.sketch10_diameter")
sketch10.setExpression("Constraints[10]", "Params.sketch10_radius")
sketch10.setExpression("Constraints[11]", "Params.sketch10_radius2")
sketch10.setExpression("Constraints[12]", "Params.sketch10_radius3")
sketch10.setExpression("Constraints[13]", "Params.sketch10_width")
pad6 = body2.newObject("PartDesign::Pad", "Pad005")
pad6.Profile = sketch10
pad6.setExpression("Length", "Params.pad6_length")

# Sketch on YZ plane
sketch11 = body2.newObject("Sketcher::SketchObject", "Sketch010")
sketch11.AttachmentSupport = (doc.getObject("YZ_Plane001"), [""])
sketch11.MapMode = "FlatFace"
sketch11.AttachmentOffset = App.Placement(Vector(0, 0, 16.5), App.Rotation())
add_polygon(sketch11, [(-4, 22), (-4, 16), (4, 16), (4, 22)])  # lines 0-3
sketch11.addConstraint([
    Sketcher.Constraint("Vertical", 0),
    Sketcher.Constraint("Horizontal", 1),
    Sketcher.Constraint("Vertical", 2),
    Sketcher.Constraint("Horizontal", 3),
    Sketcher.Constraint("DistanceX", 1, 1, 1, 2, Q("9 mm")),
    Sketcher.Constraint("DistanceY", 0, 2, 0, 1, Q("5.5 mm")),
    Sketcher.Constraint("DistanceY", -1, 1, 2, 2, Q("22 mm")),
    Sketcher.Constraint("DistanceX", 0, 2, -1, 1, Q("4.5 mm")),
])
sketch11.setExpression("Constraints[8]", "Params.sketch11_width")
sketch11.setExpression("Constraints[9]", "Params.sketch11_height")
pad7 = body2.newObject("PartDesign::Pad", "Pad006")
pad7.Profile = sketch11
pad7.setExpression("Length", "Params.pad7_length")
pad7.Reversed = True

# Sketch on XZ plane
sketch12 = body2.newObject("Sketcher::SketchObject", "Sketch011")
sketch12.AttachmentSupport = (doc.getObject("XZ_Plane001"), [""])
sketch12.MapMode = "FlatFace"
sketch12.AttachmentOffset = App.Placement(Vector(0, 0, 14), App.Rotation())
add_polygon(sketch12, [(16, 7.5), (16, 3.5), (19, 3.5), (19, 7.5)])  # lines 0-3
sketch12.addConstraint([
    Sketcher.Constraint("Vertical", 0),
    Sketcher.Constraint("Horizontal", 1),
    Sketcher.Constraint("Vertical", 2),
    Sketcher.Constraint("Horizontal", 3),
    Sketcher.Constraint("DistanceX", 1, 1, 1, 2, Q("3 mm")),
    Sketcher.Constraint("DistanceY", 0, 2, 0, 1, Q("4 mm")),
    Sketcher.Constraint("DistanceX", -1, 1, 0, 2, Q("16 mm")),
    Sketcher.Constraint("DistanceY", -1, 1, 0, 2, Q("3.5 mm")),
])
sketch12.setExpression("Constraints[8]", "Params.sketch12_width")
sketch12.setExpression("Constraints[9]", "Params.sketch12_height")
groove = body2.newObject("PartDesign::Groove", "Groove")
groove.Profile = sketch12
groove.ReferenceAxis = (sketch12, ["V_Axis"])
groove.setExpression("Angle", "Params.groove_angle")

# Sketch on XZ plane
sketch13 = body2.newObject("Sketcher::SketchObject", "Sketch012")
sketch13.AttachmentSupport = (doc.getObject("XZ_Plane001"), [""])
sketch13.MapMode = "FlatFace"
sketch13.AttachmentOffset = App.Placement(Vector(0, 0, 8), App.Rotation())
add_polygon(sketch13, [(-2.4, 7.5), (-2.4, 3.5), (0.6, 3.5), (0.6, 7.5)])  # lines 0-3
sketch13.addConstraint([
    Sketcher.Constraint("Vertical", 0),
    Sketcher.Constraint("Horizontal", 1),
    Sketcher.Constraint("Vertical", 2),
    Sketcher.Constraint("Horizontal", 3),
    Sketcher.Constraint("DistanceX", 1, 1, 1, 2, Q("3 mm")),
    Sketcher.Constraint("DistanceY", 0, 2, 0, 1, Q("4 mm")),
    Sketcher.Constraint("DistanceX", 0, 2, -1, 1, Q("2.4 mm")),
    Sketcher.Constraint("DistanceY", -1, 1, 0, 2, Q("3.5 mm")),
])
sketch13.setExpression("Constraints[8]", "Params.sketch13_width")
sketch13.setExpression("Constraints[9]", "Params.sketch13_height")
pocket5 = body2.newObject("PartDesign::Pocket", "Pocket004")
pocket5.Profile = sketch13
pocket5.setExpression("Length", "Params.pocket5_length")

# Sketch on XY plane
sketch14 = body2.newObject("Sketcher::SketchObject", "Sketch013")
sketch14.AttachmentSupport = (doc.getObject("XY_Plane001"), [""])
sketch14.MapMode = "FlatFace"
sketch14.AttachmentOffset = App.Placement(Vector(0, 0, -30), App.Rotation())
add_polygon(sketch14, [(-12.2, -36), (-19.3, -24.6), (1.3, -25.4), (-5.2, -36)])  # lines 0-3
add_polygon(sketch14, [(-11.9, -30.5), (-11.9, -33.5), (-5.5, -33.5), (-5.5, -30.5)])  # lines 4-7
sketch14.addConstraint([
    Sketcher.Constraint("Horizontal", 3),
    Sketcher.Constraint("Vertical", 4),
    Sketcher.Constraint("Horizontal", 5),
    Sketcher.Constraint("Vertical", 6),
    Sketcher.Constraint("Horizontal", 7),
    Sketcher.Constraint("DistanceX", 3, 2, 3, 1, Q("7 mm")),
    Sketcher.Constraint("DistanceY", 4, 2, 4, 1, Q("3 mm")),
    Sketcher.Constraint("DistanceX", 5, 1, 5, 2, Q("6.4 mm")),
    Sketcher.Constraint("DistanceY", 2, 2, -1, 1, Q("36 mm")),
    Sketcher.Constraint("DistanceX", 2, 2, -1, 1, Q("5.2 mm")),
    Sketcher.Constraint("DistanceX", 4, 2, -1, 1, Q("11.9 mm")),
    Sketcher.Constraint("DistanceY", 4, 2, -1, 1, Q("33.5 mm")),
    Sketcher.Constraint("Distance", 0, Q("13.416408 mm")),
    Sketcher.Constraint("DistanceX", -1, 1, 1, 2, Q("1.348039 mm")),
    Sketcher.Constraint("Distance", 1, Q("20.668103 mm")),
    Sketcher.Constraint("Distance", 2, Q("12.429205 mm")),
])
sketch14.setExpression("Constraints[13]", "Params.sketch14_width")
sketch14.setExpression("Constraints[14]", "Params.sketch14_height")
sketch14.setExpression("Constraints[15]", "Params.sketch14_width2")
pad8 = body2.newObject("PartDesign::Pad", "Pad007")
pad8.Profile = sketch14
pad8.setExpression("Length", "Params.pad8_length")

# Sketch on XZ plane
sketch15 = body2.newObject("Sketcher::SketchObject", "Sketch014")
sketch15.AttachmentSupport = (doc.getObject("XZ_Plane001"), [""])
sketch15.MapMode = "FlatFace"
sketch15.AttachmentOffset = App.Placement(Vector(0, 0, 36), App.Rotation())
sketch15.addGeometry(Part.Circle(Vector(-8.7, -26, 0), Vector(0, 0, 1), 1.7), False)
sketch15.addConstraint([
    Sketcher.Constraint("Diameter", 0, Q("3.4 mm")),
    Sketcher.Constraint("DistanceY", 0, 3, -1, 1, Q("26 mm")),
    Sketcher.Constraint("DistanceX", 0, 3, -1, 1, Q("8.7 mm")),
])
sketch15.setExpression("Constraints[0]", "Params.sketch15_diameter")
pocket6 = body2.newObject("PartDesign::Pocket", "Pocket005")
pocket6.Profile = sketch15
pocket6.setExpression("Length", "Params.pocket6_length")

# Sketch on XY plane
sketch16 = body2.newObject("Sketcher::SketchObject", "Sketch015")
sketch16.AttachmentSupport = (doc.getObject("XY_Plane001"), [""])
sketch16.MapMode = "FlatFace"
sketch16.AttachmentOffset = App.Placement(Vector(0, 0, -13), App.Rotation())
add_polygon(sketch16, [(-4, -27), (1, -18), (-4, -9), (-14, -9), (-19, -18), (-14, -27)])  # lines 0-5
sketch16.addConstraint([
    Sketcher.Constraint("Horizontal", 2),
    Sketcher.Constraint("Horizontal", 5),
    Sketcher.Constraint("Parallel", 0, 3),
    Sketcher.Constraint("Parallel", 1, 4),
    Sketcher.Constraint("Horizontal", 0, 2, 3, 2),
    Sketcher.Constraint("Vertical", 2, 2, 4, 2),
    Sketcher.Constraint("Vertical", 1, 2, 5, 2),
    Sketcher.Constraint("Angle", 0, Q("60 deg")),
    Sketcher.Constraint("DistanceY", 0, 2, -1, 1, Q("18 mm")),
    Sketcher.Constraint("DistanceY", 4, 2, 2, 2, Q("17.1 mm")),
    Sketcher.Constraint("DistanceX", 2, 2, 2, 1, Q("9.87269 mm")),
    Sketcher.Constraint("DistanceX", -1, 1, 0, 2, Q("1.17269 mm")),
])
pocket7 = body2.newObject("PartDesign::Pocket", "Pocket006")
pocket7.Profile = sketch16
pocket7.setExpression("Length", "Params.pocket7_length")
pocket7.Midplane = True

# Sketch on XY plane
sketch17 = body2.newObject("Sketcher::SketchObject", "Sketch016")
sketch17.AttachmentSupport = (doc.getObject("XY_Plane001"), [""])
sketch17.MapMode = "FlatFace"
sketch17.AttachmentOffset = App.Placement(Vector(0, 0, -30), App.Rotation())
add_polygon(sketch17, [(-18, -9.6), (-18, -8), (-16.2, -8)])  # lines 0-2
sketch17.addConstraint([
    Sketcher.Constraint("Vertical", 0),
    Sketcher.Constraint("Horizontal", 1),
    Sketcher.Constraint("DistanceX", 1, 1, 1, 2, Q("1.8 mm")),
    Sketcher.Constraint("DistanceX", 0, 2, -1, 1, Q("18 mm")),
    Sketcher.Constraint("DistanceY", 0, 2, -1, 1, Q("8 mm")),
    Sketcher.Constraint("DistanceY", 0, 1, 0, 2, Q("1.647755 mm")),
])
sketch17.setExpression("Constraints[5]", "Params.sketch17_width")
pad9 = body2.newObject("PartDesign::Pad", "Pad008")
pad9.Profile = sketch17
pad9.setExpression("Length", "Params.pad9_length")

doc.recompute()
